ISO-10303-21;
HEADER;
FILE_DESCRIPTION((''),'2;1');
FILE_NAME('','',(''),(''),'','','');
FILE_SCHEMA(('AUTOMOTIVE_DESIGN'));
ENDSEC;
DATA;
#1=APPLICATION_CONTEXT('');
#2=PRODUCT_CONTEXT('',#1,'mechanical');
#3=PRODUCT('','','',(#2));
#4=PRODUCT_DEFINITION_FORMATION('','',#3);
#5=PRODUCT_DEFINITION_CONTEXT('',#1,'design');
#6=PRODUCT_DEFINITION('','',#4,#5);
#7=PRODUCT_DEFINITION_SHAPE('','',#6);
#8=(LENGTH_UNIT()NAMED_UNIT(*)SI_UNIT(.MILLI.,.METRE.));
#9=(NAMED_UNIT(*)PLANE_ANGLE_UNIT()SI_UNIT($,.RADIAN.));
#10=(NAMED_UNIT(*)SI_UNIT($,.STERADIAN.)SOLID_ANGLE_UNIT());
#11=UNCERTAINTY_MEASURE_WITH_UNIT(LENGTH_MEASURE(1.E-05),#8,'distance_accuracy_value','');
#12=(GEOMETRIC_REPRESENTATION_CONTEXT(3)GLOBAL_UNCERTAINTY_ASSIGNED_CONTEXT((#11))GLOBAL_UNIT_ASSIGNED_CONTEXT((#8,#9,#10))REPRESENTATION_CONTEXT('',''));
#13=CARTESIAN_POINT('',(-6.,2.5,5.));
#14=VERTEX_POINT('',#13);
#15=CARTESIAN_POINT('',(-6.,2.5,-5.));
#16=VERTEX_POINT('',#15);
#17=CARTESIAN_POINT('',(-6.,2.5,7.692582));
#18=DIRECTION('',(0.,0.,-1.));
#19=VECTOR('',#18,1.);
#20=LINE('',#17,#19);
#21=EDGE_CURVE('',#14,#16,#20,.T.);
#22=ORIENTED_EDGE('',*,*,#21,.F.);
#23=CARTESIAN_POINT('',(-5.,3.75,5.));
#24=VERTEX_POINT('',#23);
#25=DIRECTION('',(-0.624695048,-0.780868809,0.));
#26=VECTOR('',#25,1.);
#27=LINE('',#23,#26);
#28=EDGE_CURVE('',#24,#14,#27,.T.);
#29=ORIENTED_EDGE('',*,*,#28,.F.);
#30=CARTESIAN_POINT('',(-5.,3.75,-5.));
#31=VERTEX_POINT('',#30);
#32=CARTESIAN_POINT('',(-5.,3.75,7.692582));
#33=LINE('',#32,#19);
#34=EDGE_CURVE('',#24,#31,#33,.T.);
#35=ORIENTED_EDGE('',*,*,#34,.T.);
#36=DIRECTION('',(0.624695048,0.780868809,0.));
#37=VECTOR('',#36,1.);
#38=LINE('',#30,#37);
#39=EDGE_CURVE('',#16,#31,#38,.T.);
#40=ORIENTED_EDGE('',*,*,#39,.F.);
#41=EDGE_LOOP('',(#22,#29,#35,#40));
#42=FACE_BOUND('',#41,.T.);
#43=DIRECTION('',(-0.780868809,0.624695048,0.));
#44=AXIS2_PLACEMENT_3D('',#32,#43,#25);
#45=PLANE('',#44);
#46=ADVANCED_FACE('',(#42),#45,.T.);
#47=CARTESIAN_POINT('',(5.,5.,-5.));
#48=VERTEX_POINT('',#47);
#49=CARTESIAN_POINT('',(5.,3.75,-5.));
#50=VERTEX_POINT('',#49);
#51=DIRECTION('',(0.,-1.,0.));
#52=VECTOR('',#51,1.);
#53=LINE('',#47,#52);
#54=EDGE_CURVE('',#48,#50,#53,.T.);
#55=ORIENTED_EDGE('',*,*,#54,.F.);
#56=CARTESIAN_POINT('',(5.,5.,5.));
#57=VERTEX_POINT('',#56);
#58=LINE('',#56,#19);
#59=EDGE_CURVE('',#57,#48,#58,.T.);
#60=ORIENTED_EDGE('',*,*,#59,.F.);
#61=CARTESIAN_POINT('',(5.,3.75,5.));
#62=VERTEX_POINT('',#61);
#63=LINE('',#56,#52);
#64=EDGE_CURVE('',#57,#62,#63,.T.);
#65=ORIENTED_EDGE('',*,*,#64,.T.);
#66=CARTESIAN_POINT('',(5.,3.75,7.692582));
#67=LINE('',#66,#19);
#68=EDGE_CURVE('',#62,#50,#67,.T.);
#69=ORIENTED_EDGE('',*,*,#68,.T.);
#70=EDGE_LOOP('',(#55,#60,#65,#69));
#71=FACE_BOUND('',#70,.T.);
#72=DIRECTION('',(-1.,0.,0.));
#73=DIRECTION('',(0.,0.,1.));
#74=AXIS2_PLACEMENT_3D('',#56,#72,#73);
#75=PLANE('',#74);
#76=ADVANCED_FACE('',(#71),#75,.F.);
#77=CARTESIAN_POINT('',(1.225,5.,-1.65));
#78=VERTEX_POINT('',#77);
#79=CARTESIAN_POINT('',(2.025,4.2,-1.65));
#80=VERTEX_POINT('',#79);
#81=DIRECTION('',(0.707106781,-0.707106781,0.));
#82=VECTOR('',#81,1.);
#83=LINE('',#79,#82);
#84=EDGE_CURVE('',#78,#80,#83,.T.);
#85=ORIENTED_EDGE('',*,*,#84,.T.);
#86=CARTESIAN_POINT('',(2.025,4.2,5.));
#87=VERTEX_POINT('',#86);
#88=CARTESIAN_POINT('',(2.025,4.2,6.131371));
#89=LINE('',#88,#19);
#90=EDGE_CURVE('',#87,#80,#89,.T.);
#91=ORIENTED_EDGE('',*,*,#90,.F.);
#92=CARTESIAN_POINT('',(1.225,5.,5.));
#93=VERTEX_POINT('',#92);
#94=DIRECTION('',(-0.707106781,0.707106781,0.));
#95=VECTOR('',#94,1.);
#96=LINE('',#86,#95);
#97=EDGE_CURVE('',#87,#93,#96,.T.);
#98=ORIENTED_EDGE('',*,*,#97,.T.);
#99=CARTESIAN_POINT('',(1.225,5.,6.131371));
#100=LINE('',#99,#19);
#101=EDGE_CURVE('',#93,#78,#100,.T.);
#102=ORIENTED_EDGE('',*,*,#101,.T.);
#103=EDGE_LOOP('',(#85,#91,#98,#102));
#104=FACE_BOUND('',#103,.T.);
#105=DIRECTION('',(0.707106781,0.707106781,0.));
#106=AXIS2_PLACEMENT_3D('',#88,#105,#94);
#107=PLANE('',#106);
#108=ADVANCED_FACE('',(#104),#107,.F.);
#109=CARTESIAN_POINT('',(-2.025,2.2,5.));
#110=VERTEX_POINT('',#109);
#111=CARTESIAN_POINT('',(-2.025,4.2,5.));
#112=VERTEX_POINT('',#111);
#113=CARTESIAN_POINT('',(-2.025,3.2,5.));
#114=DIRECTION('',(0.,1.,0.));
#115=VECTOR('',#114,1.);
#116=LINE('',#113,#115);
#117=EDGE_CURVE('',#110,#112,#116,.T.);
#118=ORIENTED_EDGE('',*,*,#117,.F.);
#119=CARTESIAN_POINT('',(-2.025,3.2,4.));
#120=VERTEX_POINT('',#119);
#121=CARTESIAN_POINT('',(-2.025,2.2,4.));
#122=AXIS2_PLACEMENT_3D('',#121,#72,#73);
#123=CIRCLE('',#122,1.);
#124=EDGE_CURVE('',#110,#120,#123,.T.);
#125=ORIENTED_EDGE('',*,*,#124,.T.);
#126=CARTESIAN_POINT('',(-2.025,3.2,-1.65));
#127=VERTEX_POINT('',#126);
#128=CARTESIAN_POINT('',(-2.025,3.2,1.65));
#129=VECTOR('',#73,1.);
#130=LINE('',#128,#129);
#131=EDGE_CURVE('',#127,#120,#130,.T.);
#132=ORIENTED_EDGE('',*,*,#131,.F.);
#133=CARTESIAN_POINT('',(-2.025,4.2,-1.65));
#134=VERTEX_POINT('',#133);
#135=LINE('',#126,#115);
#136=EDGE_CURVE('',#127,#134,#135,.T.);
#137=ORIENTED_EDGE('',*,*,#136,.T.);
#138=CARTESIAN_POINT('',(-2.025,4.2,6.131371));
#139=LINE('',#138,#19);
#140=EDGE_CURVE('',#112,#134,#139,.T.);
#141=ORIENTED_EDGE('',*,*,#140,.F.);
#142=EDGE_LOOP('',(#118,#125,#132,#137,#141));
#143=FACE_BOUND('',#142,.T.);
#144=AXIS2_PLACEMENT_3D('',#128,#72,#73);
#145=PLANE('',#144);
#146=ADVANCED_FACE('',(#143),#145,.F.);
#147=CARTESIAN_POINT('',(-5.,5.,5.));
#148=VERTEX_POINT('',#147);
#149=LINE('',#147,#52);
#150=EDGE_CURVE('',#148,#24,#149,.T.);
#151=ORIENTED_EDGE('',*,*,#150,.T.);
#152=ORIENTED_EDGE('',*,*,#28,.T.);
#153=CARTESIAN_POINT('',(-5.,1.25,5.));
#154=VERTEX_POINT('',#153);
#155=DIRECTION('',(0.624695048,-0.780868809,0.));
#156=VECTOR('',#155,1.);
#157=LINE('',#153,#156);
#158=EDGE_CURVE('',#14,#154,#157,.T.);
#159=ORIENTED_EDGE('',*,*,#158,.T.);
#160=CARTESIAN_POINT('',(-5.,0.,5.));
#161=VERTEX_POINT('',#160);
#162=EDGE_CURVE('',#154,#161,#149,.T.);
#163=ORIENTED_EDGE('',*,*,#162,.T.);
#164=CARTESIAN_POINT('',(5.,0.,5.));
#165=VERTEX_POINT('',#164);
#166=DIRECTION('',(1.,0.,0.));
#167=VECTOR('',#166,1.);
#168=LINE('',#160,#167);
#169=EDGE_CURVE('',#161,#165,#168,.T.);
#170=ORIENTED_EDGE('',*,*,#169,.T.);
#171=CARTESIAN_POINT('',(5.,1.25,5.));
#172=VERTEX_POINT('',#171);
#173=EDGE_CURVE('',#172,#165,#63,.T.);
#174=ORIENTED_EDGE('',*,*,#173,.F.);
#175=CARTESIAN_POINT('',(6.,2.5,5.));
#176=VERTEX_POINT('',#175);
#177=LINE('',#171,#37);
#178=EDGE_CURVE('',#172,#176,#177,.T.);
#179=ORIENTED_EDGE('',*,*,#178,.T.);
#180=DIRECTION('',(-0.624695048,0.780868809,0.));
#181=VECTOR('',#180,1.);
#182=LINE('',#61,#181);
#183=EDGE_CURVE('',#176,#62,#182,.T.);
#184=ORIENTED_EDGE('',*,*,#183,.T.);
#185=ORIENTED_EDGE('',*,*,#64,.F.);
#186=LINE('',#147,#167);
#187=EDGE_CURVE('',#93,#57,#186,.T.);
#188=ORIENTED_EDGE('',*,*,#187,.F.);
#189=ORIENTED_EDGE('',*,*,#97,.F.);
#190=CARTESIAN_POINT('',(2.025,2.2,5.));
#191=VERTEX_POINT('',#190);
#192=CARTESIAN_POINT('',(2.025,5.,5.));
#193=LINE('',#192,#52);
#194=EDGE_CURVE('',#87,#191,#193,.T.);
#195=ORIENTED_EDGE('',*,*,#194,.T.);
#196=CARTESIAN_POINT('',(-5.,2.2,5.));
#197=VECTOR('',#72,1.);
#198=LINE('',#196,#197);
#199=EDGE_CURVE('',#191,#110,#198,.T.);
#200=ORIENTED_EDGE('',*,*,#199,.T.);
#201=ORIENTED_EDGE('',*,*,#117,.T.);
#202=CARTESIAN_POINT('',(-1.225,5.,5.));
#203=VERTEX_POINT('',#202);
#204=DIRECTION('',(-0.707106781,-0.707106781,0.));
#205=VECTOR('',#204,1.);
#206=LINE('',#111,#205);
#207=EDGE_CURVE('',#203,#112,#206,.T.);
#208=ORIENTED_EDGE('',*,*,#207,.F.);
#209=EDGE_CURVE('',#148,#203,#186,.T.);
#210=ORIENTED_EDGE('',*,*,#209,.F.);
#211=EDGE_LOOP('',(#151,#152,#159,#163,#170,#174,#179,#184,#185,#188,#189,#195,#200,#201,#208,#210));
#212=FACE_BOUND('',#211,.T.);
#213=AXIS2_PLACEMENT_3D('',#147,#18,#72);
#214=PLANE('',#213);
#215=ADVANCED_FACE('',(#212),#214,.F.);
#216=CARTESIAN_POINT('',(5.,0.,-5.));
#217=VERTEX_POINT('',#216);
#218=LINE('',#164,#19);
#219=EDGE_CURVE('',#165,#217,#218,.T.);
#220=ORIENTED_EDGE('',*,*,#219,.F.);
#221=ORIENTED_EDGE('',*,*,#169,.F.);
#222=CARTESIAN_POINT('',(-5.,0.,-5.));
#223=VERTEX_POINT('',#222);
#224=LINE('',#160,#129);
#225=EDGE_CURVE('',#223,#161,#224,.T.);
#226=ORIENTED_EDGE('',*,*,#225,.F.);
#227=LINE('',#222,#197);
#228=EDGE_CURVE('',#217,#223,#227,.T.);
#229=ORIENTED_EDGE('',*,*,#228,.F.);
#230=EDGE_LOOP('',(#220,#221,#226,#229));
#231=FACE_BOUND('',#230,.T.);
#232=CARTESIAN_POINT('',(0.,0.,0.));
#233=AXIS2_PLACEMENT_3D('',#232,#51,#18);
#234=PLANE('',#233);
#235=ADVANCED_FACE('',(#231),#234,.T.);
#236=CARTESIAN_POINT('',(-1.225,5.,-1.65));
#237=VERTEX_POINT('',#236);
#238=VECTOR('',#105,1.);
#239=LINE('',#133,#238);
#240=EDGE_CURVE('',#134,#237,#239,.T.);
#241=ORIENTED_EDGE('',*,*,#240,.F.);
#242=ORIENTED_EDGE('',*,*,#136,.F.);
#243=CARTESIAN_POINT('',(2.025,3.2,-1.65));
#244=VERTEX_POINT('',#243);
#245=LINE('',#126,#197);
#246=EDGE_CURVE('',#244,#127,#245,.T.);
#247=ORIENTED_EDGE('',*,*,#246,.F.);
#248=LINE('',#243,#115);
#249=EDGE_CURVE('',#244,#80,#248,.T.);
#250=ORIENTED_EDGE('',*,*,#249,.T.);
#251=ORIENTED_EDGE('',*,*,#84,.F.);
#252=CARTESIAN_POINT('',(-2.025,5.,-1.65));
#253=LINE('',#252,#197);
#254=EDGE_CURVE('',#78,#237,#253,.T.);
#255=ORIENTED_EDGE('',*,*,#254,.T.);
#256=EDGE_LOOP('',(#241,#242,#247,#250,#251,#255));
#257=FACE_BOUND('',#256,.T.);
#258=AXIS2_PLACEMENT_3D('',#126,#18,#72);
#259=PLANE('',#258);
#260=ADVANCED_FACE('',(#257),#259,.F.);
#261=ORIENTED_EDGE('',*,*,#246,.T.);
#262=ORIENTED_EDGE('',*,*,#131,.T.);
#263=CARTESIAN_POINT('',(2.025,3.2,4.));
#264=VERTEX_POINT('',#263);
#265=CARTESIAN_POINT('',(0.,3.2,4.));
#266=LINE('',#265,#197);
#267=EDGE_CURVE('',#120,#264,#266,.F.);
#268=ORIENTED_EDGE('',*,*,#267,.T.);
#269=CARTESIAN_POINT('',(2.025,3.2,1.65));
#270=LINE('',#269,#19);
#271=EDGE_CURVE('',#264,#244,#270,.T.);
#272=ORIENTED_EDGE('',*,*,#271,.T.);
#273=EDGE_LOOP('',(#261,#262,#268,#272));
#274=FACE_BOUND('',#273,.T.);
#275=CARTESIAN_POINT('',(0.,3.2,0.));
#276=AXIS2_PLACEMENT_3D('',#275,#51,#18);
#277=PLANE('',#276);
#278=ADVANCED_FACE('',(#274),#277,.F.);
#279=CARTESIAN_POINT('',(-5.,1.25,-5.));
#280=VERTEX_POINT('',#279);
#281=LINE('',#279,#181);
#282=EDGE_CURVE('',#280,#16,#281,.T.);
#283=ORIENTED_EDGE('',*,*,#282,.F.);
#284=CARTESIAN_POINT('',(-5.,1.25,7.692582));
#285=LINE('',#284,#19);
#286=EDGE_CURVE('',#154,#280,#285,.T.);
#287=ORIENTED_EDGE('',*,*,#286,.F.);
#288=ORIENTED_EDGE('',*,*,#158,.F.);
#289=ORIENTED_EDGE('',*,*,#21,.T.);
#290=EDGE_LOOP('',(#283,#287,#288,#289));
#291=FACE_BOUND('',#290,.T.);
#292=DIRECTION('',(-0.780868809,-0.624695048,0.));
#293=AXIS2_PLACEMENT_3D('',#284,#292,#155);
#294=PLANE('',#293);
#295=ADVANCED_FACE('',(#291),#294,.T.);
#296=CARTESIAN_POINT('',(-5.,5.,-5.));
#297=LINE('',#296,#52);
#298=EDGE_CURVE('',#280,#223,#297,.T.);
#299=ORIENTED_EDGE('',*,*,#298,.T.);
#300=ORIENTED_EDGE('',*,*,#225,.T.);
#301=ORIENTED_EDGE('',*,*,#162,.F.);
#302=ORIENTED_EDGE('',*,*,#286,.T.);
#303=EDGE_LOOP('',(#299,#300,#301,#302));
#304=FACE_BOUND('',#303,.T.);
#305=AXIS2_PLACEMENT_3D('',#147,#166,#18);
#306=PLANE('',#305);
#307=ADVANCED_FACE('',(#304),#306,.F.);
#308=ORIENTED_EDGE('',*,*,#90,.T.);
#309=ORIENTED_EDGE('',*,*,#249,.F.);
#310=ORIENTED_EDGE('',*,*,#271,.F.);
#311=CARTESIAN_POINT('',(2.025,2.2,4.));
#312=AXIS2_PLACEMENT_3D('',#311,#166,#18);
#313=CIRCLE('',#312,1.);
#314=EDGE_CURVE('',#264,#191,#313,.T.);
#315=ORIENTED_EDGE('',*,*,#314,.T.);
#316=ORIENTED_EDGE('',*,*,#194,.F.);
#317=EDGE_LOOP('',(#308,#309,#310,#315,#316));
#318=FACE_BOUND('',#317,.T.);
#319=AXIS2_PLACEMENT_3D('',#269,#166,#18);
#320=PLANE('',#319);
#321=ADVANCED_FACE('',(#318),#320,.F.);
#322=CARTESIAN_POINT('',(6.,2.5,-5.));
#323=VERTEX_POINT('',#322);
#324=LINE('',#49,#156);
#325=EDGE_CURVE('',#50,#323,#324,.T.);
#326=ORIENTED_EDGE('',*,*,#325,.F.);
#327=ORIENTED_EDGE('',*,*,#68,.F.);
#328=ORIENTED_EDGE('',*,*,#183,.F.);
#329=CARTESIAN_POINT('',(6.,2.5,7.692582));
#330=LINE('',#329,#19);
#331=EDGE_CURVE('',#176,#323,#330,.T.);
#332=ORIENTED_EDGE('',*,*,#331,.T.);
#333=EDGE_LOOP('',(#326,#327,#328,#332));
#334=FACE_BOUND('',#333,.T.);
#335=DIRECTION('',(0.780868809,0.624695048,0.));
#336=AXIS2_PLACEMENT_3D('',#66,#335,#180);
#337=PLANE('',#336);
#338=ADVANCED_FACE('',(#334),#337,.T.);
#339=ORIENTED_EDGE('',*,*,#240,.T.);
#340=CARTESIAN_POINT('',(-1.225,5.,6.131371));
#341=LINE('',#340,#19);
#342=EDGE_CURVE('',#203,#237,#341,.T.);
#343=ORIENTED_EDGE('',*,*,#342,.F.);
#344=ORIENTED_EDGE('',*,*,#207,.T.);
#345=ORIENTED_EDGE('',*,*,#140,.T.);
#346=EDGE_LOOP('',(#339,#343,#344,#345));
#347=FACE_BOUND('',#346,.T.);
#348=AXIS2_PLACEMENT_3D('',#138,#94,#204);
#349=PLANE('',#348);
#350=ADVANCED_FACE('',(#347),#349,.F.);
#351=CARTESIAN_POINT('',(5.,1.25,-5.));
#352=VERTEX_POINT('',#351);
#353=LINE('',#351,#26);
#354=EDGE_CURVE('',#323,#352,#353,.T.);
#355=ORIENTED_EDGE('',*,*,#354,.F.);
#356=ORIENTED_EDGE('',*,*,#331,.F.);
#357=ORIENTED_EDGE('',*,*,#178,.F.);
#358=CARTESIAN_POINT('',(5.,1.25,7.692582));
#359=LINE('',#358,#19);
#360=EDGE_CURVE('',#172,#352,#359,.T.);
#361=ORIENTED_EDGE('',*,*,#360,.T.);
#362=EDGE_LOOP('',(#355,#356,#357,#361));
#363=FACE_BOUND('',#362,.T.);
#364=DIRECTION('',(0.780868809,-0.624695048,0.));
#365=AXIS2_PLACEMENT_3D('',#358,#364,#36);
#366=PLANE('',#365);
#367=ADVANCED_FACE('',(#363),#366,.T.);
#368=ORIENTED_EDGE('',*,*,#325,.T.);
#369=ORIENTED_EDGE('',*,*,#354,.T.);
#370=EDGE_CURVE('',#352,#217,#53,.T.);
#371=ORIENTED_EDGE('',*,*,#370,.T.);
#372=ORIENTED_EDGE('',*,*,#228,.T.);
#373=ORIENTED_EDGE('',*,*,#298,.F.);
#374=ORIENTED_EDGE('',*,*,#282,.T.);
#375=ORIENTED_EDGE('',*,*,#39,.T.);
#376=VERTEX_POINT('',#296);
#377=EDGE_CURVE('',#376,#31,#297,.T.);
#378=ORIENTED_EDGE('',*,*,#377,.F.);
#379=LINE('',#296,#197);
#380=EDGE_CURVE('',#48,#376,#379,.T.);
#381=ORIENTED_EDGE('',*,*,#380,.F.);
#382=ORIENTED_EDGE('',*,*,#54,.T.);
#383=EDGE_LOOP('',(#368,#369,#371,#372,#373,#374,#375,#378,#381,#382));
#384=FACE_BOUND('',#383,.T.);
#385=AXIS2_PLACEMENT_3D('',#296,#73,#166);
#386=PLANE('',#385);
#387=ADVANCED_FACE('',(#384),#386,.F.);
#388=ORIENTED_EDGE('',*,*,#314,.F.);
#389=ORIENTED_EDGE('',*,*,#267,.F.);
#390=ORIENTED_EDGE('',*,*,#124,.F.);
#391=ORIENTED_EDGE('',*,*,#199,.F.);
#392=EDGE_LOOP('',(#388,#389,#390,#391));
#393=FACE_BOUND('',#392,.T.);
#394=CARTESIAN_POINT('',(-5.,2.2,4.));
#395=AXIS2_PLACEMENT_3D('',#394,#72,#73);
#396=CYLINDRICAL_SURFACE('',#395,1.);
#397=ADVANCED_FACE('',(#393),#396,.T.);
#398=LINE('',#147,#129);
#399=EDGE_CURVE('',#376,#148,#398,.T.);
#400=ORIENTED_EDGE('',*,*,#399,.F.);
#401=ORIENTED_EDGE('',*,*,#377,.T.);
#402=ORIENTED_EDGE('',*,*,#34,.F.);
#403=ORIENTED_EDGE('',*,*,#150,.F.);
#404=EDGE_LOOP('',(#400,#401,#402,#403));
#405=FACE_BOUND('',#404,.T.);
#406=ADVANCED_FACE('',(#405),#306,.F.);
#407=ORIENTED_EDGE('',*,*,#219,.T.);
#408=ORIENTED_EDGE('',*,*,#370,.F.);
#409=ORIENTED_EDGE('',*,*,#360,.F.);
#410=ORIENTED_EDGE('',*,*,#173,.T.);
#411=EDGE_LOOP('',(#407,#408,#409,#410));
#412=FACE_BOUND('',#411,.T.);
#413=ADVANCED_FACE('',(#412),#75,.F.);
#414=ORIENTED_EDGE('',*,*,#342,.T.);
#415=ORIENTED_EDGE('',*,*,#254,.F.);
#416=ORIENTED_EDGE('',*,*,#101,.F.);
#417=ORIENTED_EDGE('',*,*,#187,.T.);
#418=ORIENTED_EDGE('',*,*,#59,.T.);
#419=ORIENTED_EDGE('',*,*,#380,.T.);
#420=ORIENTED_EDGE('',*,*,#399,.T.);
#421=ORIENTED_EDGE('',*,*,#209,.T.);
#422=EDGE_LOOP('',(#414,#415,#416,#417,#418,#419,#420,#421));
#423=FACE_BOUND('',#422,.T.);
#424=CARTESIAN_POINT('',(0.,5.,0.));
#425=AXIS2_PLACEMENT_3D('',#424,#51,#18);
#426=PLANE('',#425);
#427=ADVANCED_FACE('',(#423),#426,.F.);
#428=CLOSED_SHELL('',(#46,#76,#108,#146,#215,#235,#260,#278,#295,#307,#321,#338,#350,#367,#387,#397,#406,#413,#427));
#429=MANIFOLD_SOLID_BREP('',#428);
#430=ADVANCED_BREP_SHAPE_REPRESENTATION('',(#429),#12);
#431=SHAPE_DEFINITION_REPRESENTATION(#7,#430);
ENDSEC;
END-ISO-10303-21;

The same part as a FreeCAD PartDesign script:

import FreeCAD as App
import Part
import Sketcher
Q = App.Units.Quantity


def edges_at(feature, points):
    """Names of the edges that pass closest to the given points."""
    edges = feature.Shape.Edges
    near = lambda p: min(range(len(edges)), key=lambda i: edges[i].distToShape(Part.Vertex(*p))[0])
    return sorted({f"Edge{near(p) + 1}" for p in points})


def add_polygon(sketch, points):
    """Adds a closed chain of lines whose ends are joined by coincident constraints."""
    first, n = sketch.GeometryCount, len(points)
    for a, b in zip(points, points[1:] + points[:1]):
        sketch.addGeometry(Part.LineSegment(App.Vector(*a, 0), App.Vector(*b, 0)), False)
    for i in range(n):
        sketch.addConstraint(Sketcher.Constraint("Coincident", first + i, 2, first + (i + 1) % n, 1))

doc = App.newDocument("Part")
body = doc.addObject("PartDesign::Body", "Body")

# Sketch on XZ plane
sketch1 = doc.addObject("Sketcher::SketchObject", "Sketch")
body.addObject(sketch1)
sketch1.AttachmentSupport = (doc.XZ_Plane, [""])
sketch1.MapMode = "FlatFace"
add_polygon(sketch1, [(-5, -5), (-5, 5), (5, 5), (5, -5)])  # lines 0-3
sketch1.addConstraint(Sketcher.Constraint("Vertical", 0))
sketch1.addConstraint(Sketcher.Constraint("Horizontal", 1))
sketch1.addConstraint(Sketcher.Constraint("Vertical", 2))
sketch1.addConstraint(Sketcher.Constraint("Horizontal", 3))
sketch1.addConstraint(Sketcher.Constraint("Symmetric", 0, 2, 2, 2, -1, 1))
sketch1.addConstraint(Sketcher.Constraint("Equal", 3, 0))
sketch1.addConstraint(Sketcher.Constraint("DistanceX", 1, 1, 1, 2, Q("10 mm")))
pad1 = doc.addObject("PartDesign::Pad", "Pad")
body.addObject(pad1)
pad1.Profile = sketch1
pad1.Length = 5
pad1.Reversed = True

# Sketch on XY plane
sketch2 = doc.addObject("Sketcher::SketchObject", "Sketch001")
body.addObject(sketch2)
sketch2.AttachmentSupport = (doc.XY_Plane, [""])
sketch2.MapMode = "FlatFace"
sketch2.AttachmentOffset = App.Placement(App.Vector(0, 0, -5), App.Rotation())
add_polygon(sketch2, [(-5, 3.8), (-5, 1.2), (-6, 2.5)])  # lines 0-2
add_polygon(sketch2, [(5, 1.2), (5, 3.8), (6, 2.5)])  # lines 3-5
sketch2.addConstraint(Sketcher.Constraint("Vertical", 0))
sketch2.addConstraint(Sketcher.Constraint("Vertical", 3))
sketch2.addConstraint(Sketcher.Constraint("Symmetric", 2, 2, 3, 2, -2))
sketch2.addConstraint(Sketcher.Constraint("Symmetric", 1, 2, 4, 2, -2))
sketch2.addConstraint(Sketcher.Constraint("Parallel", 1, 4))
sketch2.addConstraint(Sketcher.Constraint("Parallel", 2, 5))
sketch2.addConstraint(Sketcher.Constraint("DistanceY", 0, 2, 0, 1, Q("2.5 mm")))
sketch2.addConstraint(Sketcher.Constraint("DistanceX", 0, 2, -1, 1, Q("5 mm")))
sketch2.addConstraint(Sketcher.Constraint("DistanceX", 1, 2, -1, 1, Q("6 mm")))
sketch2.addConstraint(Sketcher.Constraint("DistanceY", -1, 1, 1, 2, Q("2.5 mm")))
pad2 = doc.addObject("PartDesign::Pad", "Pad001")
body.addObject(pad2)
pad2.Profile = sketch2
pad2.Length = 10

# Sketch on XZ plane
sketch3 = doc.addObject("Sketcher::SketchObject", "Sketch002")
body.addObject(sketch3)
sketch3.AttachmentSupport = (doc.XZ_Plane, [""])
sketch3.MapMode = "FlatFace"
sketch3.AttachmentOffset = App.Placement(App.Vector(0, 0, -5), App.Rotation())
add_polygon(sketch3, [(-2, -1.6), (-2, 1.6), (2, 1.6), (2, -1.6)])  # lines 0-3
sketch3.addConstraint(Sketcher.Constraint("Vertical", 0))
sketch3.addConstraint(Sketcher.Constraint("Horizontal", 1))
sketch3.addConstraint(Sketcher.Constraint("Vertical", 2))
sketch3.addConstraint(Sketcher.Constraint("Horizontal", 3))
sketch3.addConstraint(Sketcher.Constraint("Symmetric", 0, 2, 2, 2, -1, 1))
sketch3.addConstraint(Sketcher.Constraint("DistanceY", 0, 1, 0, 2, Q("3.3 mm")))
sketch3.addConstraint(Sketcher.Constraint("DistanceX", 1, 1, 1, 2, Q("4.05 mm")))
pocket1 = doc.addObject("PartDesign::Pocket", "Pocket")
body.addObject(pocket1)
pocket1.Profile = sketch3
pocket1.Length = 1.8
pocket1.Reversed = True

# Sketch on XY plane
sketch4 = doc.addObject("Sketcher::SketchObject", "Sketch003")
body.addObject(sketch4)
sketch4.AttachmentSupport = (doc.XY_Plane, [""])
sketch4.MapMode = "FlatFace"
sketch4.AttachmentOffset = App.Placement(App.Vector(0, 0, 1.65), App.Rotation())
add_polygon(sketch4, [(2, 5), (2, 3.2), (-2, 3.2), (-2, 5)])  # lines 0-3
sketch4.addConstraint(Sketcher.Constraint("Vertical", 0))
sketch4.addConstraint(Sketcher.Constraint("Horizontal", 1))
sketch4.addConstraint(Sketcher.Constraint("Vertical", 2))
sketch4.addConstraint(Sketcher.Constraint("Horizontal", 3))
sketch4.addConstraint(Sketcher.Constraint("DistanceY", 0, 2, 0, 1, Q("1.8 mm")))
sketch4.addConstraint(Sketcher.Constraint("DistanceY", -1, 1, 2, 2, Q("5 mm")))
sketch4.addConstraint(Sketcher.Constraint("DistanceX", 1, 2, 1, 1, Q("4.05 mm")))
sketch4.addConstraint(Sketcher.Constraint("DistanceX", -1, 1, 0, 2, Q("2.025 mm")))
pocket2 = doc.addObject("PartDesign::Pocket", "Pocket001")
body.addObject(pocket2)
pocket2.Profile = sketch4
pocket2.Type = "ThroughAll"
pocket2.Reversed = True
doc.recompute()

fillet = doc.addObject("PartDesign::Fillet", "Fillet")
body.addObject(fillet)
fillet.Base = (pocket2, edges_at(pocket2, [(0, 3.2, 5)]))
fillet.Radius = 1

# Sketch on XY plane
sketch5 = doc.addObject("Sketcher::SketchObject", "Sketch004")
body.addObject(sketch5)
sketch5.AttachmentSupport = (doc.XY_Plane, [""])
sketch5.MapMode = "FlatFace"
sketch5.AttachmentOffset = App.Placement(App.Vector(0, 0, -1.65), App.Rotation())
add_polygon(sketch5, [(2, 4.2), (2, 5), (1.2, 5)])  # lines 0-2
add_polygon(sketch5, [(-2, 4.2), (-1.2, 5), (-2, 5)])  # lines 3-5
sketch5.addConstraint(Sketcher.Constraint("Vertical", 0))
sketch5.addConstraint(Sketcher.Constraint("Horizontal", 1))
sketch5.addConstraint(Sketcher.Constraint("Horizontal", 4))
sketch5.addConstraint(Sketcher.Constraint("Vertical", 5))
sketch5.addConstraint(Sketcher.Constraint("Symmetric", 1, 2, 3, 2, -2))
sketch5.addConstraint(Sketcher.Constraint("Symmetric", 2, 2, 5, 2, -2))
sketch5.addConstraint(Sketcher.Constraint("Perpendicular", 2, 3))
sketch5.addConstraint(Sketcher.Constraint("DistanceX", 1, 2, 1, 1, Q("0.8 mm")))
sketch5.addConstraint(Sketcher.Constraint("DistanceY", -1, 1, 0, 2, Q("5 mm")))
sketch5.addConstraint(Sketcher.Constraint("DistanceX", 3, 2, 1, 2, Q("2.45 mm")))
pad3 = doc.addObject("PartDesign::Pad", "Pad002")
body.addObject(pad3)
pad3.Profile = sketch5
pad3.Length = 6.65

doc.recompute()
